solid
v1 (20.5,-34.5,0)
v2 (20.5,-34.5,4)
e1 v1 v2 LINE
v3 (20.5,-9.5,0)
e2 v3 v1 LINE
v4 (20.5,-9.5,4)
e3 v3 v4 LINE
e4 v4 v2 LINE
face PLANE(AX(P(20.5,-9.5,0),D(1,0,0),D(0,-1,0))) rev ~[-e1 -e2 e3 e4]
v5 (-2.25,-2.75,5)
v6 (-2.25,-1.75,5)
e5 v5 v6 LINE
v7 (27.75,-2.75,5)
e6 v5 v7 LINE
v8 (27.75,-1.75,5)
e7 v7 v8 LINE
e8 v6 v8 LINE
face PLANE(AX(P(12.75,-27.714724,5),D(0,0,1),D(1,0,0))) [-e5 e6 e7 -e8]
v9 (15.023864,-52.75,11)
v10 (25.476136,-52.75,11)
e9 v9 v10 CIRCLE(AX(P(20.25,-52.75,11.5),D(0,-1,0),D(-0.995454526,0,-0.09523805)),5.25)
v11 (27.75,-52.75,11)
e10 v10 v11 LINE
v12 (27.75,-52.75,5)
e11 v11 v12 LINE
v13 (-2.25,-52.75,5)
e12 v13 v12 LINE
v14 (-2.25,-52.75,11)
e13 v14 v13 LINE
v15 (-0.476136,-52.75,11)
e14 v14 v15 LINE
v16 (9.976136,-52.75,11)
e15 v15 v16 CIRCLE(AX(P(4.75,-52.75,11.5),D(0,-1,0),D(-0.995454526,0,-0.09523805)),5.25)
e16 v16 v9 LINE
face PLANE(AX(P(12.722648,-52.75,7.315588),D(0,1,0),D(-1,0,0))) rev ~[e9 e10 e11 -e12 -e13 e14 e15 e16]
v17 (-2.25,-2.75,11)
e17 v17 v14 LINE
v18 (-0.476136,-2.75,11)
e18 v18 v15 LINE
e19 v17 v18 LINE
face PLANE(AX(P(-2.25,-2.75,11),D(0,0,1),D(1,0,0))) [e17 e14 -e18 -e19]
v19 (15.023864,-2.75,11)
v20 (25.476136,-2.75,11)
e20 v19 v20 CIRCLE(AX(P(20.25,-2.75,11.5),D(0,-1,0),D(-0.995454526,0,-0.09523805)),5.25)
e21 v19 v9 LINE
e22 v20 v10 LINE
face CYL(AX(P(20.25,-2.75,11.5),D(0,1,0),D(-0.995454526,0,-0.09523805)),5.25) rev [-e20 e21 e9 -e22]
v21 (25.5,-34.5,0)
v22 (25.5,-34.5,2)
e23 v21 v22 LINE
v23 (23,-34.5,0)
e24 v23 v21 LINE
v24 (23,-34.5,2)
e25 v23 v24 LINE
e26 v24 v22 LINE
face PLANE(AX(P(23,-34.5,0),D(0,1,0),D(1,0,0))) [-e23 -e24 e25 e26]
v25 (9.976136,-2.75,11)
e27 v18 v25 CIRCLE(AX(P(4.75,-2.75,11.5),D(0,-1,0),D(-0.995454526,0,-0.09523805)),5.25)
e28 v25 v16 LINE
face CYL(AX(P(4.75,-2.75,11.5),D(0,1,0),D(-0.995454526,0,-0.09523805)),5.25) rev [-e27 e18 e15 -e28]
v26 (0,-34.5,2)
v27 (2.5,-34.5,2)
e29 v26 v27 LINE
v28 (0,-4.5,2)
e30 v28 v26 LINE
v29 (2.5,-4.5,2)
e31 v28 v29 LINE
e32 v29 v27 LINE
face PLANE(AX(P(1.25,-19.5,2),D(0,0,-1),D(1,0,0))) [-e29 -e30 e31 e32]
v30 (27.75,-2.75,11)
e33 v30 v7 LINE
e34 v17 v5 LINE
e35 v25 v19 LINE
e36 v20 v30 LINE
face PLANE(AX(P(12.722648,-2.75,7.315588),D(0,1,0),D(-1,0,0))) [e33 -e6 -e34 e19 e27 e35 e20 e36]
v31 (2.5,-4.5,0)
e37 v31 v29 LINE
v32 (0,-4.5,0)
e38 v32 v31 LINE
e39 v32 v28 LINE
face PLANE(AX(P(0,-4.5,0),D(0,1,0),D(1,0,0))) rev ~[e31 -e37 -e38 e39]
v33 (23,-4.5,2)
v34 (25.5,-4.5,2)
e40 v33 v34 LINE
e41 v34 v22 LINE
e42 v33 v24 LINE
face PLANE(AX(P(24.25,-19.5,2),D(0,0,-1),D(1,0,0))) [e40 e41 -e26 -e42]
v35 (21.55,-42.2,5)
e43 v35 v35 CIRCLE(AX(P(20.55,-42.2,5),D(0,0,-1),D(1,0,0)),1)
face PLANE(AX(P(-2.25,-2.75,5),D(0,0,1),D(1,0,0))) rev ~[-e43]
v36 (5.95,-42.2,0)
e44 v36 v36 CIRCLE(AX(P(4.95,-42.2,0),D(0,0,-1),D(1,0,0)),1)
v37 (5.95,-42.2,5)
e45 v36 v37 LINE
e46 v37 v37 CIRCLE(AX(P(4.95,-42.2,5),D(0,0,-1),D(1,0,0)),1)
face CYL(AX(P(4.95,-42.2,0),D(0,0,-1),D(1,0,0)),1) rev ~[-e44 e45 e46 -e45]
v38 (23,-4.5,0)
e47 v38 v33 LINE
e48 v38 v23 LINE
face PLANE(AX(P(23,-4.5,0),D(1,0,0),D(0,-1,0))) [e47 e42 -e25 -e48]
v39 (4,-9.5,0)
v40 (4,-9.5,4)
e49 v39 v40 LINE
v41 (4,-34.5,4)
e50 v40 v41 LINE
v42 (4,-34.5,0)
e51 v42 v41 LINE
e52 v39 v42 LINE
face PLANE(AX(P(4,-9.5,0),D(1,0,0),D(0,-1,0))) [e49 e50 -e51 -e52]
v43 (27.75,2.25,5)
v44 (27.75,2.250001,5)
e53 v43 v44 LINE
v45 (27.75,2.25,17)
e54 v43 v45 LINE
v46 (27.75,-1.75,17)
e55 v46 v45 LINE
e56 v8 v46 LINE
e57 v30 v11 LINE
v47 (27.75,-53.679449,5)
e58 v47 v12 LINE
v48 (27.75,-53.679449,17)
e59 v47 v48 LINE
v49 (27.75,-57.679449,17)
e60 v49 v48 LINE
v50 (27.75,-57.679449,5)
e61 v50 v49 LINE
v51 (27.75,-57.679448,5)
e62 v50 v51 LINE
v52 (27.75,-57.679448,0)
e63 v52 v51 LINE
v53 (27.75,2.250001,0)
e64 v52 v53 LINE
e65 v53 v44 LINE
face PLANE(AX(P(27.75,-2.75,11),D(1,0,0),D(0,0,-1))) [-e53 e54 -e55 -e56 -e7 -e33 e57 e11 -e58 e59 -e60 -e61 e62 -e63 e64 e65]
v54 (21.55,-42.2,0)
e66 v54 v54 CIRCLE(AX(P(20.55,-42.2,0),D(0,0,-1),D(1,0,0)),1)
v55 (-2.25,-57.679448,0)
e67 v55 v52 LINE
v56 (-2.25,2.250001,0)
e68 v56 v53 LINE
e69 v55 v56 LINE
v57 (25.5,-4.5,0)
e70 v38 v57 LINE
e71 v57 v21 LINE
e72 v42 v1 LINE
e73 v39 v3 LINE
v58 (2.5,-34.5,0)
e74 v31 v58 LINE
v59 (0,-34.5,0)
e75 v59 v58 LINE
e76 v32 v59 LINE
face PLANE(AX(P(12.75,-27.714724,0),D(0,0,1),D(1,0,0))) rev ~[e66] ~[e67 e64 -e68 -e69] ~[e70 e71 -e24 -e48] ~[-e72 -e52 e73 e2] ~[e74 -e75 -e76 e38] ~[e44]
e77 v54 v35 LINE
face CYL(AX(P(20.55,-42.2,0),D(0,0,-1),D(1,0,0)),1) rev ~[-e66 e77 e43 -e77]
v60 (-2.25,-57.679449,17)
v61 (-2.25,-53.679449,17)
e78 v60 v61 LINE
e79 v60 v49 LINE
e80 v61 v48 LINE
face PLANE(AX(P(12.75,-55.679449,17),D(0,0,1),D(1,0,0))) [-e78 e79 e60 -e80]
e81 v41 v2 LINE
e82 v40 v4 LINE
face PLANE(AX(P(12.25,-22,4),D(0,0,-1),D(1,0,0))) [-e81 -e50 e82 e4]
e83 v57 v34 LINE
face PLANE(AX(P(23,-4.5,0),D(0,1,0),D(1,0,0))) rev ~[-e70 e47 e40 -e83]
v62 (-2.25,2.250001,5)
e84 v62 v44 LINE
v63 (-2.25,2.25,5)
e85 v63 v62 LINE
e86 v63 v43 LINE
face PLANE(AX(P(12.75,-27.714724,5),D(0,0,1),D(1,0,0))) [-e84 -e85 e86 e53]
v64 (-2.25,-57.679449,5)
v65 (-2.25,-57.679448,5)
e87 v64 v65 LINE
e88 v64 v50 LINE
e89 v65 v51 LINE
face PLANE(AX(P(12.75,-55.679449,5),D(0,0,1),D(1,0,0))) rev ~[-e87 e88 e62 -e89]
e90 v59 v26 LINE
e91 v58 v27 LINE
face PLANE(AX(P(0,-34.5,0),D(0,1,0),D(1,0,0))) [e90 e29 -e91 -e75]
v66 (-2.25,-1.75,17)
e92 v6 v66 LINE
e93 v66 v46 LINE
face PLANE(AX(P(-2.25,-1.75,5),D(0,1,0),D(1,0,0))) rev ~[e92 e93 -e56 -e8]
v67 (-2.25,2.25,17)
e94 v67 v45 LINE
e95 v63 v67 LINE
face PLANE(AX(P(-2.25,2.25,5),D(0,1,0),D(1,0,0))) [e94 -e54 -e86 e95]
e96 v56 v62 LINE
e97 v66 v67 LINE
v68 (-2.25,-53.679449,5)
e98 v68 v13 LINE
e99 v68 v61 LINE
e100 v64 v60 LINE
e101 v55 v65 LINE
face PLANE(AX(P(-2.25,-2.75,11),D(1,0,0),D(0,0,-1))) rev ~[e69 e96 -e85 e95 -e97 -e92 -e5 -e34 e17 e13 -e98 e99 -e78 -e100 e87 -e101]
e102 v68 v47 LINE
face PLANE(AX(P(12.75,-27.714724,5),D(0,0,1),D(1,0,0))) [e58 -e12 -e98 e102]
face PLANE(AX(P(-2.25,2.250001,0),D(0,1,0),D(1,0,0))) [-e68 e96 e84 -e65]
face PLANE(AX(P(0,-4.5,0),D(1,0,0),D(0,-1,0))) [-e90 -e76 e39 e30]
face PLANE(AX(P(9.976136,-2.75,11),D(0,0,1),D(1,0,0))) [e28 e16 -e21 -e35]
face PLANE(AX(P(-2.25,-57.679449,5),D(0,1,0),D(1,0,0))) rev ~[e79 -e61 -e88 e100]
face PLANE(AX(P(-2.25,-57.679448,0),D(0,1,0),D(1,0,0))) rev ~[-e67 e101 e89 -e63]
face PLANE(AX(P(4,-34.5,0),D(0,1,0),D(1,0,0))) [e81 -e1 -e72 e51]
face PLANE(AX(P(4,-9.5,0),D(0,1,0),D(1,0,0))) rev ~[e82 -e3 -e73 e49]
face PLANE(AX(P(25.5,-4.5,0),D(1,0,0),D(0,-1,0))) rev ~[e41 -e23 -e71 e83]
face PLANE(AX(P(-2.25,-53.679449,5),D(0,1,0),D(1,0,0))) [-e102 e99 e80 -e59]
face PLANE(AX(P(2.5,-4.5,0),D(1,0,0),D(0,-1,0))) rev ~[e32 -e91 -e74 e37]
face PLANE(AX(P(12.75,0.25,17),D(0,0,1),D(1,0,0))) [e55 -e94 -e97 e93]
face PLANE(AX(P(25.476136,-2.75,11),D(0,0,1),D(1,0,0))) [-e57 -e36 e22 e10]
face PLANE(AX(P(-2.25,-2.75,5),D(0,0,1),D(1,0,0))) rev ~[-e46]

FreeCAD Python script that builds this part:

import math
import FreeCAD as App
import Part
import Sketcher
from FreeCAD import Vector

doc = App.newDocument("Part")
body = doc.addObject("PartDesign::Body", "Body")

sketch1 = body.newObject("Sketcher::SketchObject", "Sketch")
sketch1.AttachmentSupport = (doc.getObject("XY_Plane"), [""])
sketch1.MapMode = "FlatFace"
sketch1.addGeometry([
    Part.LineSegment(Vector(-2, 2, 0), Vector(-2, -58, 0)),
    Part.LineSegment(Vector(-2, -58, 0), Vector(28, -58, 0)),
    Part.LineSegment(Vector(28, -58, 0), Vector(28, 2, 0)),
    Part.LineSegment(Vector(28, 2, 0), Vector(-2, 2, 0)),
], False)
sketch1.addConstraint([
    Sketcher.Constraint("Coincident", 0, 2, 1, 1),
    Sketcher.Constraint("Coincident", 1, 2, 2, 1),
    Sketcher.Constraint("Coincident", 2, 2, 3, 1),
    Sketcher.Constraint("Coincident", 3, 2, 0, 1),
    Sketcher.Constraint("Vertical", 0),
    Sketcher.Constraint("Horizontal", 1),
    Sketcher.Constraint("Vertical", 2),
    Sketcher.Constraint("Horizontal", 3),
    Sketcher.Constraint("DistanceX", 1, 1, 1, 2, 30.0),
    Sketcher.Constraint("DistanceX", 0, 2, -1, 1, 2.25),
    Sketcher.Constraint("DistanceY", -1, 1, 2, 2, 2.250001),
    Sketcher.Constraint("DistanceY", 0, 2, 0, 1, 59.929449),
])
pad1 = body.newObject("PartDesign::Pad", "Pad")
pad1.Profile = sketch1
pad1.Length = 5

sketch2 = body.newObject("Sketcher::SketchObject", "Sketch001")
sketch2.AttachmentSupport = (doc.getObject("XY_Plane"), [""])
sketch2.MapMode = "FlatFace"
sketch2.addGeometry([
    Part.LineSegment(Vector(4, -34, 0), Vector(4, -10, 0)),
    Part.LineSegment(Vector(4, -10, 0), Vector(20, -10, 0)),
    Part.LineSegment(Vector(20, -10, 0), Vector(20, -34, 0)),
    Part.LineSegment(Vector(20, -34, 0), Vector(4, -34, 0)),
], False)
sketch2.addConstraint([
    Sketcher.Constraint("Coincident", 0, 2, 1, 1),
    Sketcher.Constraint("Coincident", 1, 2, 2, 1),
    Sketcher.Constraint("Coincident", 2, 2, 3, 1),
    Sketcher.Constraint("Coincident", 3, 2, 0, 1),
    Sketcher.Constraint("Vertical", 0),
    Sketcher.Constraint("Horizontal", 1),
    Sketcher.Constraint("Vertical", 2),
    Sketcher.Constraint("Horizontal", 3),
    Sketcher.Constraint("DistanceY", 0, 1, 0, 2, 25.0),
    Sketcher.Constraint("DistanceX", 1, 1, 1, 2, 16.5),
    Sketcher.Constraint("DistanceX", -1, 1, 0, 2, 4.0),
    Sketcher.Constraint("DistanceY", 0, 2, -1, 1, 9.5),
])
pocket1 = body.newObject("PartDesign::Pocket", "Pocket")
pocket1.Profile = sketch2
pocket1.Length = 4
pocket1.Reversed = True

sketch3 = body.newObject("Sketcher::SketchObject", "Sketch002")
sketch3.AttachmentSupport = (doc.getObject("XY_Plane"), [""])
sketch3.MapMode = "FlatFace"
sketch3.addGeometry([
    Part.LineSegment(Vector(0, -34.5, 0), Vector(0, -4.5, 0)),
    Part.LineSegment(Vector(0, -4.5, 0), Vector(2.5, -4.5, 0)),
    Part.LineSegment(Vector(2.5, -4.5, 0), Vector(2.5, -34.5, 0)),
    Part.LineSegment(Vector(2.5, -34.5, 0), Vector(0, -34.5, 0)),
    Part.LineSegment(Vector(23, -34.5, 0), Vector(23, -4.5, 0)),
    Part.LineSegment(Vector(23, -4.5, 0), Vector(25.5, -4.5, 0)),
    Part.LineSegment(Vector(25.5, -4.5, 0), Vector(25.5, -34.5, 0)),
    Part.LineSegment(Vector(25.5, -34.5, 0), Vector(23, -34.5, 0)),
], False)
sketch3.addConstraint([
    Sketcher.Constraint("Coincident", 0, 2, 1, 1),
    Sketcher.Constraint("Coincident", 1, 2, 2, 1),
    Sketcher.Constraint("Coincident", 2, 2, 3, 1),
    Sketcher.Constraint("Coincident", 3, 2, 0, 1),
    Sketcher.Constraint("Coincident", 4, 2, 5, 1),
    Sketcher.Constraint("Coincident", 5, 2, 6, 1),
    Sketcher.Constraint("Coincident", 6, 2, 7, 1),
    Sketcher.Constraint("Coincident", 7, 2, 4, 1),
    Sketcher.Constraint("Vertical", 0),
    Sketcher.Constraint("Horizontal", 1),
    Sketcher.Constraint("Vertical", 2),
    Sketcher.Constraint("Horizontal", 3),
    Sketcher.Constraint("Vertical", 4),
    Sketcher.Constraint("Horizontal", 5),
    Sketcher.Constraint("Vertical", 6),
    Sketcher.Constraint("Horizontal", 7),
    Sketcher.Constraint("PointOnObject", 0, 2, -2),
    Sketcher.Constraint("Horizontal", 1, 2, 4, 2),
    Sketcher.Constraint("Horizontal", 3, 2, 6, 2),
    Sketcher.Constraint("Equal", 3, 5),
    Sketcher.Constraint("DistanceY", 0, 1, 0, 2, 30.0),
    Sketcher.Constraint("DistanceX", 1, 1, 1, 2, 2.5),
    Sketcher.Constraint("DistanceX", -1, 1, 4, 2, 23.0),
    Sketcher.Constraint("DistanceY", 0, 2, -1, 1, 4.5),
])
pocket2 = body.newObject("PartDesign::Pocket", "Pocket001")
pocket2.Profile = sketch3
pocket2.Length = 2
pocket2.Reversed = True

sketch4 = body.newObject("Sketcher::SketchObject", "Sketch003")
sketch4.AttachmentSupport = (doc.getObject("XY_Plane"), [""])
sketch4.MapMode = "FlatFace"
sketch4.addGeometry([
    Part.Circle(Vector(5, -42.2, 0), Vector(0, 0, 1), 1),
    Part.Circle(Vector(20.6, -42.2, 0), Vector(0, 0, 1), 1),
], False)
sketch4.addConstraint([
    Sketcher.Constraint("Equal", 0, 1),
    Sketcher.Constraint("Horizontal", 0, 3, 1, 3),
    Sketcher.Constraint("Diameter", 0, 2.0),
    Sketcher.Constraint("DistanceY", 0, 3, -1, 1, 42.2),
    Sketcher.Constraint("DistanceX", 0, 3, 1, 3, 15.6),
    Sketcher.Constraint("DistanceX", -1, 1, 0, 3, 4.95),
])
pocket3 = body.newObject("PartDesign::Pocket", "Pocket002")
pocket3.Profile = sketch4
pocket3.Length = 5
pocket3.Reversed = True

sketch5 = body.newObject("Sketcher::SketchObject", "Sketch004")
sketch5.AttachmentSupport = (doc.getObject("XY_Plane"), [""])
sketch5.MapMode = "FlatFace"
sketch5.AttachmentOffset = App.Placement(Vector(0, 0, 5), App.Rotation())
sketch5.addGeometry([
    Part.LineSegment(Vector(-2.2, -53.7, 0), Vector(-2.2, -57.7, 0)),
    Part.LineSegment(Vector(-2.2, -57.7, 0), Vector(27.8, -57.7, 0)),
    Part.LineSegment(Vector(27.8, -57.7, 0), Vector(27.8, -53.7, 0)),
    Part.LineSegment(Vector(27.8, -53.7, 0), Vector(-2.2, -53.7, 0)),
    Part.LineSegment(Vector(-2.2, 2.2, 0), Vector(-2.2, -1.8, 0)),
    Part.LineSegment(Vector(-2.2, -1.8, 0), Vector(27.8, -1.8, 0)),
    Part.LineSegment(Vector(27.8, -1.8, 0), Vector(27.8, 2.2, 0)),
    Part.LineSegment(Vector(27.8, 2.2, 0), Vector(-2.2, 2.2, 0)),
], False)
sketch5.addConstraint([
    Sketcher.Constraint("Coincident", 0, 2, 1, 1),
    Sketcher.Constraint("Coincident", 1, 2, 2, 1),
    Sketcher.Constraint("Coincident", 2, 2, 3, 1),
    Sketcher.Constraint("Coincident", 3, 2, 0, 1),
    Sketcher.Constraint("Coincident", 4, 2, 5, 1),
    Sketcher.Constraint("Coincident", 5, 2, 6, 1),
    Sketcher.Constraint("Coincident", 6, 2, 7, 1),
    Sketcher.Constraint("Coincident", 7, 2, 4, 1),
    Sketcher.Constraint("Vertical", 0),
    Sketcher.Constraint("Horizontal", 1),
    Sketcher.Constraint("Vertical", 2),
    Sketcher.Constraint("Horizontal", 3),
    Sketcher.Constraint("Vertical", 4),
    Sketcher.Constraint("Horizontal", 5),
    Sketcher.Constraint("Vertical", 6),
    Sketcher.Constraint("Horizontal", 7),
    Sketcher.Constraint("Vertical", 3, 2, 4, 2),
    Sketcher.Constraint("Vertical", 2, 2, 5, 2),
    Sketcher.Constraint("Equal", 2, 4),
    Sketcher.Constraint("DistanceX", 1, 1, 1, 2, 30.0),
    Sketcher.Constraint("DistanceY", 0, 2, 0, 1, 4.0),
    Sketcher.Constraint("DistanceX", 0, 2, -1, 1, 2.25),
    Sketcher.Constraint("DistanceY", 4, 2, -1, 1, 1.75),
    Sketcher.Constraint("DistanceY", 0, 2, -1, 1, 57.679449),
])
pad2 = body.newObject("PartDesign::Pad", "Pad001")
pad2.Profile = sketch5
pad2.Length = 12

sketch6 = body.newObject("Sketcher::SketchObject", "Sketch005")
sketch6.AttachmentSupport = (doc.getObject("XZ_Plane"), [""])
sketch6.MapMode = "FlatFace"
sketch6.AttachmentOffset = App.Placement(Vector(0, 0, 2.75), App.Rotation())
sketch6.addGeometry([
    Part.ArcOfCircle(Part.Circle(Vector(4.8, 11.5, 0), Vector(0, 0, 1), 5.2), math.radians(-175), math.radians(-5)),
    Part.LineSegment(Vector(-0.5, 11, 0), Vector(-2.2, 11, 0)),
    Part.LineSegment(Vector(-2.2, 11, 0), Vector(-2.2, 5, 0)),
    Part.LineSegment(Vector(-2.2, 5, 0), Vector(27.8, 5, 0)),
    Part.LineSegment(Vector(27.8, 5, 0), Vector(27.8, 11, 0)),
    Part.LineSegment(Vector(27.8, 11, 0), Vector(25.5, 11, 0)),
    Part.ArcOfCircle(Part.Circle(Vector(20.2, 11.5, 0), Vector(0, 0, 1), 5.2), math.radians(-175), math.radians(-5)),
    Part.LineSegment(Vector(15, 11, 0), Vector(10, 11, 0)),
], False)
sketch6.addConstraint([
    Sketcher.Constraint("Coincident", 0, 1, 1, 1),
    Sketcher.Constraint("Coincident", 1, 2, 2, 1),
    Sketcher.Constraint("Coincident", 2, 2, 3, 1),
    Sketcher.Constraint("Coincident", 3, 2, 4, 1),
    Sketcher.Constraint("Coincident", 4, 2, 5, 1),
    Sketcher.Constraint("Coincident", 5, 2, 6, 2),
    Sketcher.Constraint("Coincident", 6, 1, 7, 1),
    Sketcher.Constraint("Coincident", 7, 2, 0, 2),
    Sketcher.Constraint("Horizontal", 1),
    Sketcher.Constraint("Vertical", 2),
    Sketcher.Constraint("Horizontal", 3),
    Sketcher.Constraint("Vertical", 4),
    Sketcher.Constraint("Horizontal", 5),
    Sketcher.Constraint("Horizontal", 7),
    Sketcher.Constraint("Equal", 0, 6),
    Sketcher.Constraint("Horizontal", 0, 3, 6, 3),
    Sketcher.Constraint("Horizontal", 1, 2, 4, 2),
    Sketcher.Constraint("Horizontal", 5, 2, 6, 1),
    Sketcher.Constraint("DistanceX", 3, 1, 3, 2, 30.0),
    Sketcher.Constraint("DistanceY", 2, 2, 2, 1, 6.0),
    Sketcher.Constraint("Radius", 0, 5.25),
    Sketcher.Constraint("DistanceY", -1, 1, 0, 1, 11.0),
    Sketcher.Constraint("DistanceX", 1, 2, 0, 3, 7.0),
    Sketcher.Constraint("DistanceY", -1, 1, 0, 3, 11.5),
    Sketcher.Constraint("DistanceX", 0, 3, 6, 3, 15.5),
    Sketcher.Constraint("DistanceX", -1, 1, 0, 3, 4.75),
])
pad3 = body.newObject("PartDesign::Pad", "Pad002")
pad3.Profile = sketch6
pad3.Length = 50

doc.recompute()
